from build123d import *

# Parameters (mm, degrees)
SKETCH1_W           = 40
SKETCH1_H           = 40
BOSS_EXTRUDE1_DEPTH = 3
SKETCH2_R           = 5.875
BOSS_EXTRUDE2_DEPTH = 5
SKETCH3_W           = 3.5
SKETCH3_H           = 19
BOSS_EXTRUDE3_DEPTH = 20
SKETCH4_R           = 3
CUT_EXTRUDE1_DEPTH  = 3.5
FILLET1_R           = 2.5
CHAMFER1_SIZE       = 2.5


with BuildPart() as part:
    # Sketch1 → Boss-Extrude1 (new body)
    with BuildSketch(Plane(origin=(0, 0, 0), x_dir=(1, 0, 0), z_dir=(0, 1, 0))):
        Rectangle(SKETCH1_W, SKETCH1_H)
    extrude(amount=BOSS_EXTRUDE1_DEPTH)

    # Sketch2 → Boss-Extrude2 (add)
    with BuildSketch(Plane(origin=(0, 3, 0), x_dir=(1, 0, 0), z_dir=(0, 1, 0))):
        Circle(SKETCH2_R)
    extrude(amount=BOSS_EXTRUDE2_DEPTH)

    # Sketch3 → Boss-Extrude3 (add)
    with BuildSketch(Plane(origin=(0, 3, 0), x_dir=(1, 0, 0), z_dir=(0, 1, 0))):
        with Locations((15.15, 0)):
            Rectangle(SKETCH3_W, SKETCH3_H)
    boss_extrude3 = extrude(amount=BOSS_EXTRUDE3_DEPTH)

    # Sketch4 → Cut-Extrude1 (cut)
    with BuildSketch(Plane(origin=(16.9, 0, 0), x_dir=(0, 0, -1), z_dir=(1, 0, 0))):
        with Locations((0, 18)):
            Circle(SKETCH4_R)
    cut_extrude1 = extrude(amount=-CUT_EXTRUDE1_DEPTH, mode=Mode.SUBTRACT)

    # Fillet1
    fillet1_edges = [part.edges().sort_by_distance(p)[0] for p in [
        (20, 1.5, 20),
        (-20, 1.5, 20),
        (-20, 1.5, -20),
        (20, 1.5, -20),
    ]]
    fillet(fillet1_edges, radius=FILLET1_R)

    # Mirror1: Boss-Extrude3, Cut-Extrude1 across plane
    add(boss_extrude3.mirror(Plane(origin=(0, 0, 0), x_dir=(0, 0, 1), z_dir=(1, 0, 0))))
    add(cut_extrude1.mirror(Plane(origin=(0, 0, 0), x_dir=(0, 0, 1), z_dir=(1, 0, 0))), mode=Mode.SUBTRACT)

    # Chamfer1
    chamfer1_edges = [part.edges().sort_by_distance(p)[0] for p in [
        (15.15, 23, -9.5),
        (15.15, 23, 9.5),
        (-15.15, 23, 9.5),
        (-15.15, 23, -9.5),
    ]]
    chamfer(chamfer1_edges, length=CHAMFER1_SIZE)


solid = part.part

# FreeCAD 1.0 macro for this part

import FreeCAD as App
import Part
import Sketcher
Q = App.Units.Quantity


def edges_at(feature, points):
    """Names of the edges that pass closest to the given points."""
    edges = feature.Shape.Edges
    near = lambda p: min(range(len(edges)), key=lambda i: edges[i].distToShape(Part.Vertex(*p))[0])
    return sorted({f"Edge{near(p) + 1}" for p in points})


def add_polygon(sketch, points):
    """Adds a closed chain of lines whose ends are joined by coincident constraints."""
    first, n = sketch.GeometryCount, len(points)
    for a, b in zip(points, points[1:] + points[:1]):
        sketch.addGeometry(Part.LineSegment(App.Vector(*a, 0), App.Vector(*b, 0)), False)
    for i in range(n):
        sketch.addConstraint(Sketcher.Constraint("Coincident", first + i, 2, first + (i + 1) % n, 1))

doc = App.newDocument("Part")
params = doc.addObject("Spreadsheet::Sheet", "Params")
for row, (alias, value) in enumerate([
    ("sketch1_width", "40 mm"),
    ("pad1_length", "3 mm"),
    ("sketch2_diameter", "11.75 mm"),
    ("pad2_length", "5 mm"),
    ("sketch3_height", "19 mm"),
    ("sketch3_width", "3.5 mm"),
    ("pad3_length", "20 mm"),
    ("sketch4_diameter", "6 mm"),
    ("pocket1_length", "3.5 mm"),
    ("fillet_radius", "2.5 mm"),
    ("chamfer_size", "2.5 mm"),
], start=1):
    params.set(f"A{row}", alias)
    params.set(f"B{row}", "=" + value)
    params.setAlias(f"B{row}", alias)

body = doc.addObject("PartDesign::Body", "Body")

# Sketch on XZ plane
sketch1 = body.newObject("Sketcher::SketchObject", "Sketch")
sketch1.AttachmentSupport = (doc.getObject("XZ_Plane"), [""])
sketch1.MapMode = "FlatFace"
add_polygon(sketch1, [(-20, -20), (-20, 20), (20, 20), (20, -20)])  # lines 0-3
sketch1.addConstraint([
    Sketcher.Constraint("Vertical", 0),
    Sketcher.Constraint("Horizontal", 1),
    Sketcher.Constraint("Vertical", 2),
    Sketcher.Constraint("Horizontal", 3),
    Sketcher.Constraint("Symmetric", 0, 2, 2, 2, -1, 1),
    Sketcher.Constraint("Equal", 3, 0),
    Sketcher.Constraint("DistanceX", 1, 1, 1, 2, Q("40 mm")),
])
sketch1.setExpression("Constraints[10]", "Params.sketch1_width")
pad1 = body.newObject("PartDesign::Pad", "Pad")
pad1.Profile = sketch1
pad1.setExpression("Length", "Params.pad1_length")
pad1.Reversed = True

# Sketch on XZ plane
sketch2 = body.newObject("Sketcher::SketchObject", "Sketch001")
sketch2.AttachmentSupport = (doc.getObject("XZ_Plane"), [""])
sketch2.MapMode = "FlatFace"
sketch2.AttachmentOffset = App.Placement(App.Vector(0, 0, -3), App.Rotation())
sketch2.addGeometry(Part.Circle(App.Vector(0, 0, 0), App.Vector(0, 0, 1), 6), False)
sketch2.addConstraint([
    Sketcher.Constraint("Coincident", 0, 3, -1, 1),
    Sketcher.Constraint("Diameter", 0, Q("11.75 mm")),
])
sketch2.setExpression("Constraints[1]", "Params.sketch2_diameter")
pad2 = body.newObject("PartDesign::Pad", "Pad001")
pad2.Profile = sketch2
pad2.setExpression("Length", "Params.pad2_length")
pad2.Reversed = True

# Sketch on XZ plane
sketch3 = body.newObject("Sketcher::SketchObject", "Sketch002")
sketch3.AttachmentSupport = (doc.getObject("XZ_Plane"), [""])
sketch3.MapMode = "FlatFace"
sketch3.AttachmentOffset = App.Placement(App.Vector(0, 0, -3), App.Rotation())
add_polygon(sketch3, [(13.4, -9.5), (13.4, 9.5), (16.9, 9.5), (16.9, -9.5)])  # lines 0-3
sketch3.addConstraint([
    Sketcher.Constraint("Vertical", 0),
    Sketcher.Constraint("Horizontal", 1),
    Sketcher.Constraint("Vertical", 2),
    Sketcher.Constraint("Horizontal", 3),
    Sketcher.Constraint("DistanceY", 0, 1, 0, 2, Q("19 mm")),
    Sketcher.Constraint("DistanceX", 1, 1, 1, 2, Q("3.5 mm")),
    Sketcher.Constraint("DistanceX", -1, 1, 0, 2, Q("13.4 mm")),
    Sketcher.Constraint("DistanceY", -1, 1, 0, 2, Q("9.5 mm")),
])
sketch3.setExpression("Constraints[8]", "Params.sketch3_height")
sketch3.setExpression("Constraints[9]", "Params.sketch3_width")
pad3 = body.newObject("PartDesign::Pad", "Pad002")
pad3.Profile = sketch3
pad3.setExpression("Length", "Params.pad3_length")
pad3.Reversed = True

# Sketch on YZ plane
sketch4 = body.newObject("Sketcher::SketchObject", "Sketch003")
sketch4.AttachmentSupport = (doc.getObject("YZ_Plane"), [""])
sketch4.MapMode = "FlatFace"
sketch4.AttachmentOffset = App.Placement(App.Vector(0, 0, 16.9), App.Rotation())
sketch4.addGeometry(Part.Circle(App.Vector(18, 0, 0), App.Vector(0, 0, 1), 3), False)
sketch4.addConstraint([
    Sketcher.Constraint("PointOnObject", 0, 3, -1),
    Sketcher.Constraint("Diameter", 0, Q("6 mm")),
    Sketcher.Constraint("DistanceX", -1, 1, 0, 3, Q("18 mm")),
])
sketch4.setExpression("Constraints[1]", "Params.sketch4_diameter")
pocket1 = body.newObject("PartDesign::Pocket", "Pocket")
pocket1.Profile = sketch4
pocket1.setExpression("Length", "Params.pocket1_length")
doc.recompute()

fillet = body.newObject("PartDesign::Fillet", "Fillet")
fillet.Base = (pocket1, edges_at(pocket1, [
    (20, 1.5, 20),
    (-20, 1.5, 20),
    (-20, 1.5, -20),
    (20, 1.5, -20),
]))
fillet.setExpression("Radius", "Params.fillet_radius")
doc.recompute()

mirrored = body.newObject("PartDesign::Mirrored", "Mirrored")
mirrored.Originals = [pad3, pocket1]
mirrored.MirrorPlane = (doc.getObject("YZ_Plane"), [""])
body.Tip = mirrored
doc.recompute()

chamfer = body.newObject("PartDesign::Chamfer", "Chamfer")
chamfer.Base = (mirrored, edges_at(mirrored, [
    (15.15, 23, -9.5),
    (15.15, 23, 9.5),
    (-15.15, 23, 9.5),
    (-15.15, 23, -9.5),
]))
chamfer.setExpression("Size", "Params.chamfer_size")

doc.recompute()
